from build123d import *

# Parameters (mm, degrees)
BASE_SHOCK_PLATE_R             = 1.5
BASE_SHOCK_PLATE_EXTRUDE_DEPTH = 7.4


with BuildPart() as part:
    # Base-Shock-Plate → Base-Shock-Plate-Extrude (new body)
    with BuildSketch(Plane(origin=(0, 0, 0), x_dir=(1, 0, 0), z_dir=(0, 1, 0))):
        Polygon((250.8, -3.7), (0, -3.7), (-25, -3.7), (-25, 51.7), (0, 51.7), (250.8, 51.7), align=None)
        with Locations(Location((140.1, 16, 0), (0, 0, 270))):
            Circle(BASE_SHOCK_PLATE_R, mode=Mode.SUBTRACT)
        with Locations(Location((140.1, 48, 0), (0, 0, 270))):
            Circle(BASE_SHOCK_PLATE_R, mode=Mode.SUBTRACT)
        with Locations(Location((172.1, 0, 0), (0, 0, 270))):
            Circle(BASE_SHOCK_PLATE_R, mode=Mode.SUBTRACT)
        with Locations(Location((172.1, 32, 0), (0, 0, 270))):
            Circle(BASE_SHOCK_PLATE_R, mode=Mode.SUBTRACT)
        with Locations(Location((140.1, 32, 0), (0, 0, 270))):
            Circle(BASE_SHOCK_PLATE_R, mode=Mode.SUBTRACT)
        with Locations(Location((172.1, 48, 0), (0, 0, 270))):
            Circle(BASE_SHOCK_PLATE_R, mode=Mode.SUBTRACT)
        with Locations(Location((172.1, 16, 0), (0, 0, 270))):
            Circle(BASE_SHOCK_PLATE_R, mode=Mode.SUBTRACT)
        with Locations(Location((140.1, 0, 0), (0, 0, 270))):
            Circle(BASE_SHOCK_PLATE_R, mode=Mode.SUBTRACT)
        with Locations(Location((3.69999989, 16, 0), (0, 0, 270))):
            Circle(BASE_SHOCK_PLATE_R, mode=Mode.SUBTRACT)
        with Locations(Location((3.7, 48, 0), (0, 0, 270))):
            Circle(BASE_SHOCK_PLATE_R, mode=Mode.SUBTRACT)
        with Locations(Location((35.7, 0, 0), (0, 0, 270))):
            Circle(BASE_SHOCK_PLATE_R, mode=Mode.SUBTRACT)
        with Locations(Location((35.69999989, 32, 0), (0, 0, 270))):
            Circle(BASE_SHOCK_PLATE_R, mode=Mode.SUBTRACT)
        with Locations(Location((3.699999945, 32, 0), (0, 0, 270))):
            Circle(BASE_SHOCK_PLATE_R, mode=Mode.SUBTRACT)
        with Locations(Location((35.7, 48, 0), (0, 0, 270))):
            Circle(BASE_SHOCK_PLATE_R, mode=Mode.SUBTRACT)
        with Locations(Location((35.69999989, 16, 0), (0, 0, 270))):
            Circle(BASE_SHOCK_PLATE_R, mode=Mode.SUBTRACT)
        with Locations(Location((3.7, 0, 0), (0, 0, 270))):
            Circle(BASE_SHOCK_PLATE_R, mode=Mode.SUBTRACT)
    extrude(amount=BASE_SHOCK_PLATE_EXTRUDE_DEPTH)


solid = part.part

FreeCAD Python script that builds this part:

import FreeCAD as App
import Part
import Sketcher
from FreeCAD import Vector

doc = App.newDocument("Part")
body = doc.addObject("PartDesign::Body", "Body")

# Sketch on XZ plane
sketch1 = body.newObject("Sketcher::SketchObject", "Sketch")
sketch1.AttachmentSupport = (doc.getObject("XZ_Plane"), [""])
sketch1.MapMode = "FlatFace"
sketch1.addGeometry(Part.LineSegment(Vector(-25, 3.7, 0), Vector(250.8, 3.7, 0)), False)
sketch1.addGeometry(Part.LineSegment(Vector(250.8, 3.7, 0), Vector(250.8, -51.7, 0)), False)
sketch1.addGeometry(Part.LineSegment(Vector(250.8, -51.7, 0), Vector(-25, -51.7, 0)), False)
sketch1.addGeometry(Part.LineSegment(Vector(-25, -51.7, 0), Vector(-25, 3.7, 0)), False)
sketch1.addGeometry(Part.Circle(Vector(172.1, 0, 0), Vector(0, 0, 1), 1.5), False)
sketch1.addGeometry(Part.Circle(Vector(140.1, 0, 0), Vector(0, 0, 1), 1.5), False)
sketch1.addGeometry(Part.Circle(Vector(172.1, -16, 0), Vector(0, 0, 1), 1.5), False)
sketch1.addGeometry(Part.Circle(Vector(140.1, -16, 0), Vector(0, 0, 1), 1.5), False)
sketch1.addGeometry(Part.Circle(Vector(35.7, 0, 0), Vector(0, 0, 1), 1.5), False)
sketch1.addGeometry(Part.Circle(Vector(3.7, 0, 0), Vector(0, 0, 1), 1.5), False)
sketch1.addGeometry(Part.Circle(Vector(35.7, -16, 0), Vector(0, 0, 1), 1.5), False)
sketch1.addGeometry(Part.Circle(Vector(3.7, -16, 0), Vector(0, 0, 1), 1.5), False)
sketch1.addGeometry(Part.Circle(Vector(172.1, -32, 0), Vector(0, 0, 1), 1.5), False)
sketch1.addGeometry(Part.Circle(Vector(140.1, -32, 0), Vector(0, 0, 1), 1.5), False)
sketch1.addGeometry(Part.Circle(Vector(172.1, -48, 0), Vector(0, 0, 1), 1.5), False)
sketch1.addGeometry(Part.Circle(Vector(140.1, -48, 0), Vector(0, 0, 1), 1.5), False)
sketch1.addGeometry(Part.Circle(Vector(35.7, -32, 0), Vector(0, 0, 1), 1.5), False)
sketch1.addGeometry(Part.Circle(Vector(3.7, -32, 0), Vector(0, 0, 1), 1.5), False)
sketch1.addGeometry(Part.Circle(Vector(35.7, -48, 0), Vector(0, 0, 1), 1.5), False)
sketch1.addGeometry(Part.Circle(Vector(3.7, -48, 0), Vector(0, 0, 1), 1.5), False)
sketch1.addConstraint(Sketcher.Constraint("Coincident", 0, 2, 1, 1))
sketch1.addConstraint(Sketcher.Constraint("Coincident", 1, 2, 2, 1))
sketch1.addConstraint(Sketcher.Constraint("Coincident", 2, 2, 3, 1))
sketch1.addConstraint(Sketcher.Constraint("Coincident", 3, 2, 0, 1))
sketch1.addConstraint(Sketcher.Constraint("Horizontal", 0))
sketch1.addConstraint(Sketcher.Constraint("Vertical", 1))
sketch1.addConstraint(Sketcher.Constraint("Horizontal", 2))
sketch1.addConstraint(Sketcher.Constraint("Vertical", 3))
sketch1.addConstraint(Sketcher.Constraint("Equal", 4, 5))
sketch1.addConstraint(Sketcher.Constraint("Equal", 5, 6))
sketch1.addConstraint(Sketcher.Constraint("Equal", 6, 7))
sketch1.addConstraint(Sketcher.Constraint("Equal", 7, 8))
sketch1.addConstraint(Sketcher.Constraint("Equal", 8, 9))
sketch1.addConstraint(Sketcher.Constraint("Equal", 9, 10))
sketch1.addConstraint(Sketcher.Constraint("Equal", 10, 11))
sketch1.addConstraint(Sketcher.Constraint("Equal", 11, 12))
sketch1.addConstraint(Sketcher.Constraint("Equal", 12, 13))
sketch1.addConstraint(Sketcher.Constraint("Equal", 13, 14))
sketch1.addConstraint(Sketcher.Constraint("Equal", 14, 15))
sketch1.addConstraint(Sketcher.Constraint("Equal", 15, 16))
sketch1.addConstraint(Sketcher.Constraint("Equal", 16, 17))
sketch1.addConstraint(Sketcher.Constraint("Equal", 17, 18))
sketch1.addConstraint(Sketcher.Constraint("Equal", 18, 19))
sketch1.addConstraint(Sketcher.Constraint("PointOnObject", 4, 3, -1))
sketch1.addConstraint(Sketcher.Constraint("PointOnObject", 5, 3, -1))
sketch1.addConstraint(Sketcher.Constraint("PointOnObject", 8, 3, -1))
sketch1.addConstraint(Sketcher.Constraint("PointOnObject", 9, 3, -1))
sketch1.addConstraint(Sketcher.Constraint("Horizontal", 6, 3, 7, 3))
sketch1.addConstraint(Sketcher.Constraint("Horizontal", 7, 3, 10, 3))
sketch1.addConstraint(Sketcher.Constraint("Horizontal", 10, 3, 11, 3))
sketch1.addConstraint(Sketcher.Constraint("Horizontal", 12, 3, 13, 3))
sketch1.addConstraint(Sketcher.Constraint("Horizontal", 14, 3, 15, 3))
sketch1.addConstraint(Sketcher.Constraint("Horizontal", 13, 3, 16, 3))
sketch1.addConstraint(Sketcher.Constraint("Horizontal", 16, 3, 17, 3))
sketch1.addConstraint(Sketcher.Constraint("Horizontal", 15, 3, 18, 3))
sketch1.addConstraint(Sketcher.Constraint("Horizontal", 18, 3, 19, 3))
sketch1.addConstraint(Sketcher.Constraint("Vertical", 4, 3, 6, 3))
sketch1.addConstraint(Sketcher.Constraint("Vertical", 5, 3, 7, 3))
sketch1.addConstraint(Sketcher.Constraint("Vertical", 8, 3, 10, 3))
sketch1.addConstraint(Sketcher.Constraint("Vertical", 9, 3, 11, 3))
sketch1.addConstraint(Sketcher.Constraint("Vertical", 6, 3, 12, 3))
sketch1.addConstraint(Sketcher.Constraint("Vertical", 7, 3, 13, 3))
sketch1.addConstraint(Sketcher.Constraint("Vertical", 12, 3, 14, 3))
sketch1.addConstraint(Sketcher.Constraint("Vertical", 13, 3, 15, 3))
sketch1.addConstraint(Sketcher.Constraint("Vertical", 10, 3, 16, 3))
sketch1.addConstraint(Sketcher.Constraint("Vertical", 11, 3, 17, 3))
sketch1.addConstraint(Sketcher.Constraint("Vertical", 16, 3, 18, 3))
sketch1.addConstraint(Sketcher.Constraint("Vertical", 17, 3, 19, 3))
sketch1.addConstraint(Sketcher.Constraint("Diameter", 4, 3.0))
sketch1.addConstraint(Sketcher.Constraint("DistanceX", 0, 1, 0, 2, 275.8))
sketch1.addConstraint(Sketcher.Constraint("DistanceY", 1, 2, 1, 1, 55.4))
sketch1.addConstraint(Sketcher.Constraint("DistanceY", 6, 3, -1, 1, 16.0))
sketch1.addConstraint(Sketcher.Constraint("DistanceY", 12, 3, -1, 1, 32.0))
sketch1.addConstraint(Sketcher.Constraint("DistanceY", 14, 3, -1, 1, 48.0))
sketch1.addConstraint(Sketcher.Constraint("DistanceX", 2, 2, -1, 1, 25.0))
sketch1.addConstraint(Sketcher.Constraint("DistanceX", 5, 3, 4, 3, 32.0))
sketch1.addConstraint(Sketcher.Constraint("DistanceX", 9, 3, 8, 3, 32.0))
sketch1.addConstraint(Sketcher.Constraint("DistanceX", -1, 1, 4, 3, 172.1))
sketch1.addConstraint(Sketcher.Constraint("DistanceX", -1, 1, 8, 3, 35.7))
sketch1.addConstraint(Sketcher.Constraint("DistanceY", -1, 1, 0, 2, 3.7))
pad1 = body.newObject("PartDesign::Pad", "Pad")
pad1.Profile = sketch1
pad1.Length = 7.4
pad1.Reversed = True

doc.recompute()
